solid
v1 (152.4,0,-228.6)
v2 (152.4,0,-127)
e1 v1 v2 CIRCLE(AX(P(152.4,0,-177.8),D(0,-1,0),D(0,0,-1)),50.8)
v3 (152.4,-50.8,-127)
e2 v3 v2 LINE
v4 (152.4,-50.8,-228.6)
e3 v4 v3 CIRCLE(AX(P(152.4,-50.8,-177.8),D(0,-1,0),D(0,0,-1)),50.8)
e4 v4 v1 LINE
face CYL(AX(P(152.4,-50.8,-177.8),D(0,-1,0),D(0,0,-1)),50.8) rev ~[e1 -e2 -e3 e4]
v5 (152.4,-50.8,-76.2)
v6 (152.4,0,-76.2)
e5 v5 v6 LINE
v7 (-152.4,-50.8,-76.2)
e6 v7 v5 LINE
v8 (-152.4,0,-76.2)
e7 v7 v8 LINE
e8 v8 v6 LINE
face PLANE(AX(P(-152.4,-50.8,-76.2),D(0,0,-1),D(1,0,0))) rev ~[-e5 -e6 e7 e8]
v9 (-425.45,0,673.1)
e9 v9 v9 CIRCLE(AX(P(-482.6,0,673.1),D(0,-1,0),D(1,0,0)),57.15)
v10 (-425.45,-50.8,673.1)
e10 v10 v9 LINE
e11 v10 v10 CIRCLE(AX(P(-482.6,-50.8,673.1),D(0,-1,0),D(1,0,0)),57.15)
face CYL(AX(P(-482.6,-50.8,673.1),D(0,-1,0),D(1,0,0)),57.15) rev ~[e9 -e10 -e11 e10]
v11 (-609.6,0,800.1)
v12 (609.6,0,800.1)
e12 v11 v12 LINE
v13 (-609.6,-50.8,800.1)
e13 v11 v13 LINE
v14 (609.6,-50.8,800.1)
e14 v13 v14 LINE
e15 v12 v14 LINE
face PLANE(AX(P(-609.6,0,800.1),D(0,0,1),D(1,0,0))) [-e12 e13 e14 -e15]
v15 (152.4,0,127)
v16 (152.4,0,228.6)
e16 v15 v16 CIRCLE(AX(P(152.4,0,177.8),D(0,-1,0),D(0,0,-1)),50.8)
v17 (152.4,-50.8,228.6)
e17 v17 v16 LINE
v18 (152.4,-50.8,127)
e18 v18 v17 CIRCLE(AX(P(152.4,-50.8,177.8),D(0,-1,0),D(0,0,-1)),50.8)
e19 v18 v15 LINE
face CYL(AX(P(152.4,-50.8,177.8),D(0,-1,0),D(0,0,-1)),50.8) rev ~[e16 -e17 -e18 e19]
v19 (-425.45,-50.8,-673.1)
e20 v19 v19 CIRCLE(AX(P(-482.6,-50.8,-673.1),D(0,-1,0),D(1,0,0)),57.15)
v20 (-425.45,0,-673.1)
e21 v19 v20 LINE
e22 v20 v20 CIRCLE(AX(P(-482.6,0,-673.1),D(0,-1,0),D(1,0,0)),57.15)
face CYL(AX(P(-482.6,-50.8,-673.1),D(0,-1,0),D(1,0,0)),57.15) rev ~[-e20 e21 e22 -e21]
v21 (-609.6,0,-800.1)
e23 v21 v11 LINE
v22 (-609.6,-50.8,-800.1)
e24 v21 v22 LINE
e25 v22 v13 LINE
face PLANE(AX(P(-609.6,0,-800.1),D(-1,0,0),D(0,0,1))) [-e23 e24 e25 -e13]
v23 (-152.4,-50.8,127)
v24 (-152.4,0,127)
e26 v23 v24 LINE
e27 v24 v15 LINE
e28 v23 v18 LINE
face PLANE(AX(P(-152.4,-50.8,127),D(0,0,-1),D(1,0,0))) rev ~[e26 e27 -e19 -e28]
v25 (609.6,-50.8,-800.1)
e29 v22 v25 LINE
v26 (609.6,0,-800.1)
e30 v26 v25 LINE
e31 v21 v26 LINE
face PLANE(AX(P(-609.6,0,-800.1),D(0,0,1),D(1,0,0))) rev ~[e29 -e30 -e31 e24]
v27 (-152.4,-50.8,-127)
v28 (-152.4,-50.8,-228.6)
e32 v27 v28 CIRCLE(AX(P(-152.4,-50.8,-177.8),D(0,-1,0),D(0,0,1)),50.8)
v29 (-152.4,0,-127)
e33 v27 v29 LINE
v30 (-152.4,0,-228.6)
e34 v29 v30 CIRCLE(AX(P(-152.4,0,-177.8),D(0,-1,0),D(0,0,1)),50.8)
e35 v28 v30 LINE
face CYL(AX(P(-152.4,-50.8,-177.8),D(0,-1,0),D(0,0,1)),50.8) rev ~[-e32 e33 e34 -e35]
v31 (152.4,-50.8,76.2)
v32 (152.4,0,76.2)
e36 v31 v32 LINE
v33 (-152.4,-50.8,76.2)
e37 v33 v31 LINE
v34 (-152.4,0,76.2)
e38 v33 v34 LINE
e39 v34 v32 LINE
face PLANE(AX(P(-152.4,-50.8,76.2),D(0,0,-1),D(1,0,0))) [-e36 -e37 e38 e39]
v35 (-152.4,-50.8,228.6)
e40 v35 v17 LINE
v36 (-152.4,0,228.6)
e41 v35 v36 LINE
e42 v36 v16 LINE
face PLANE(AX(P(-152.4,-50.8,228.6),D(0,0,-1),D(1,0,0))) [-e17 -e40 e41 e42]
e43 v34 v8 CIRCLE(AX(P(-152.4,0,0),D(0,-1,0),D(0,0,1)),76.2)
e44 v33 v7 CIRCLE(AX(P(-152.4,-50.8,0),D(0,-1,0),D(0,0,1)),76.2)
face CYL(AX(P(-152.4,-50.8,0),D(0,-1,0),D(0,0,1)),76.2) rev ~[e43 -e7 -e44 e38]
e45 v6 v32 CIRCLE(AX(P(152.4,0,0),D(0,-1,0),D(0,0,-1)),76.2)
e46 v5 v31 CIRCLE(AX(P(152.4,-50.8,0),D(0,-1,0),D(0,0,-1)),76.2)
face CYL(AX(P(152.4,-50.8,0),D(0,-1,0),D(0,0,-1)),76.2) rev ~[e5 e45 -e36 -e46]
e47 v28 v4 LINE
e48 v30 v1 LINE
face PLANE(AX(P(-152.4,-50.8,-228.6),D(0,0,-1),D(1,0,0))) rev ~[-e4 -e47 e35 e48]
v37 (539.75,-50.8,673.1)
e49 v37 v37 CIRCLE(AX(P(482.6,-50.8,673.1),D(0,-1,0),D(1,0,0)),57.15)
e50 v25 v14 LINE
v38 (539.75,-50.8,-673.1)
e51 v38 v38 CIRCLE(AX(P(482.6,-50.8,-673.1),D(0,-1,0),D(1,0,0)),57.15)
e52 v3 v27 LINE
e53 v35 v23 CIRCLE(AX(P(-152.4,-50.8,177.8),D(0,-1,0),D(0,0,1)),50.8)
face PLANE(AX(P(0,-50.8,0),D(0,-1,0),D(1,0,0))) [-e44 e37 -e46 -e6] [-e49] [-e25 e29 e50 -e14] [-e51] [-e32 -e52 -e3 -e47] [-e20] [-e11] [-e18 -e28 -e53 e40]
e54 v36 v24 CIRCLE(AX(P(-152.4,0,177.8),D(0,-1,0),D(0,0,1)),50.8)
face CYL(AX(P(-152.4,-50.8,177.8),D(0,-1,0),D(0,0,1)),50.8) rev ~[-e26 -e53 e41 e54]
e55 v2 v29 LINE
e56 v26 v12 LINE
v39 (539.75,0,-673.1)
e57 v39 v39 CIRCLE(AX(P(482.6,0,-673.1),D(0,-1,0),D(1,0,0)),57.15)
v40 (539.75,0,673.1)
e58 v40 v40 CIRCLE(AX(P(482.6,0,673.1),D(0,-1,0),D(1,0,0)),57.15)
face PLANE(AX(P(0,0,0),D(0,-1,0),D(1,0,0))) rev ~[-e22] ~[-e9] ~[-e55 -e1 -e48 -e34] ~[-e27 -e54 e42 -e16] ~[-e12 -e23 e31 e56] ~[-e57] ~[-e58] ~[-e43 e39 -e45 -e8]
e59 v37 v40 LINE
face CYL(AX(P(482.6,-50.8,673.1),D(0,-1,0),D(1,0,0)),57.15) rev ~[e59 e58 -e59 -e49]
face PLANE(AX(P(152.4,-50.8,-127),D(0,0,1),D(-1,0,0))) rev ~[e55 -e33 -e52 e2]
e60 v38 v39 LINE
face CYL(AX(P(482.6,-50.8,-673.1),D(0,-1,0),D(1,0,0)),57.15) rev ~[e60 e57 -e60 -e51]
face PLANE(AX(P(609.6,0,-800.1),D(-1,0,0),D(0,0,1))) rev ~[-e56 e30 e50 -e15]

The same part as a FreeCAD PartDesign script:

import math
import FreeCAD as App
import Part
import Sketcher
Q = App.Units.Quantity

doc = App.newDocument("Part")
body = doc.addObject("PartDesign::Body", "Body")

# Sketch on XZ plane
sketch1 = body.newObject("Sketcher::SketchObject", "Sketch")
sketch1.AttachmentSupport = (doc.getObject("XZ_Plane"), [""])
sketch1.MapMode = "FlatFace"
sketch1.addGeometry([
    Part.LineSegment(App.Vector(-609.6, 800.1, 0), App.Vector(-609.6, -800.1, 0)),
    Part.LineSegment(App.Vector(-609.6, -800.1, 0), App.Vector(609.6, -800.1, 0)),
    Part.LineSegment(App.Vector(609.6, -800.1, 0), App.Vector(609.6, 800.1, 0)),
    Part.LineSegment(App.Vector(609.6, 800.1, 0), App.Vector(-609.6, 800.1, 0)),
], False)
sketch1.addConstraint([
    Sketcher.Constraint("Coincident", 0, 2, 1, 1),
    Sketcher.Constraint("Coincident", 1, 2, 2, 1),
    Sketcher.Constraint("Coincident", 2, 2, 3, 1),
    Sketcher.Constraint("Coincident", 3, 2, 0, 1),
    Sketcher.Constraint("Vertical", 0),
    Sketcher.Constraint("Horizontal", 1),
    Sketcher.Constraint("Vertical", 2),
    Sketcher.Constraint("Horizontal", 3),
    Sketcher.Constraint("Symmetric", 0, 2, 2, 2, -1, 1),
    Sketcher.Constraint("DistanceX", 1, 1, 1, 2, Q("48 in")),
    Sketcher.Constraint("DistanceY", 0, 2, 0, 1, Q("63 in")),
])
pad1 = body.newObject("PartDesign::Pad", "Pad")
pad1.Profile = sketch1
pad1.Length = Q("2 in")

# Sketch on XZ plane
sketch2 = body.newObject("Sketcher::SketchObject", "Sketch001")
sketch2.AttachmentSupport = (doc.getObject("XZ_Plane"), [""])
sketch2.MapMode = "FlatFace"
sketch2.AttachmentOffset = App.Placement(App.Vector(0, 0, 2 * 25.4), App.Rotation())
sketch2.addGeometry([
    Part.Circle(App.Vector(-482.6, 673.1, 0), App.Vector(0, 0, 1), 57.15),
    Part.Circle(App.Vector(482.6, 673.1, 0), App.Vector(0, 0, 1), 57.15),
    Part.Circle(App.Vector(-482.6, -673.1, 0), App.Vector(0, 0, 1), 57.15),
    Part.Circle(App.Vector(482.6, -673.1, 0), App.Vector(0, 0, 1), 57.15),
], False)
sketch2.addConstraint([
    Sketcher.Constraint("Equal", 0, 1),
    Sketcher.Constraint("Equal", 1, 2),
    Sketcher.Constraint("Equal", 2, 3),
    Sketcher.Constraint("Symmetric", 1, 3, 2, 3, -1, 1),
    Sketcher.Constraint("Symmetric", 0, 3, 3, 3, -1, 1),
    Sketcher.Constraint("Symmetric", 0, 3, 1, 3, -2),
    Sketcher.Constraint("Diameter", 0, Q("4.5 in")),
    Sketcher.Constraint("DistanceX", 0, 3, -1, 1, Q("19 in")),
    Sketcher.Constraint("DistanceY", 2, 3, 0, 3, Q("53 in")),
])
pocket1 = body.newObject("PartDesign::Pocket", "Pocket")
pocket1.Profile = sketch2
pocket1.Length = Q("3 in")

# Sketch on XZ plane
sketch3 = body.newObject("Sketcher::SketchObject", "Sketch002")
sketch3.AttachmentSupport = (doc.getObject("XZ_Plane"), [""])
sketch3.MapMode = "FlatFace"
sketch3.AttachmentOffset = App.Placement(App.Vector(0, 0, 2 * 25.4), App.Rotation())
sketch3.addGeometry([
    Part.LineSegment(App.Vector(-152.4, 127, 0), App.Vector(152.4, 127, 0)),  # 0
    Part.ArcOfCircle(Part.Circle(App.Vector(152.4, 177.8, 0), App.Vector(0, 0, 1), 50.8), math.radians(-90), math.radians(90)),  # 1
    Part.LineSegment(App.Vector(152.4, 228.6, 0), App.Vector(-152.4, 228.6, 0)),  # 2
    Part.ArcOfCircle(Part.Circle(App.Vector(-152.4, 177.8, 0), App.Vector(0, 0, 1), 50.8), math.radians(90), math.radians(270)),  # 3
    Part.LineSegment(App.Vector(152.4, -127, 0), App.Vector(-152.4, -127, 0)),  # 4
    Part.ArcOfCircle(Part.Circle(App.Vector(-152.4, -177.8, 0), App.Vector(0, 0, 1), 50.8), math.radians(90), math.radians(270)),  # 5
    Part.LineSegment(App.Vector(-152.4, -228.6, 0), App.Vector(152.4, -228.6, 0)),  # 6
    Part.ArcOfCircle(Part.Circle(App.Vector(152.4, -177.8, 0), App.Vector(0, 0, 1), 50.8), math.radians(-90), math.radians(90)),  # 7
    Part.LineSegment(App.Vector(-152.4, -76.2, 0), App.Vector(152.4, -76.2, 0)),  # 8
    Part.ArcOfCircle(Part.Circle(App.Vector(152.4, 0, 0), App.Vector(0, 0, 1), 76.2), math.radians(-90), math.radians(90)),  # 9
    Part.LineSegment(App.Vector(152.4, 76.2, 0), App.Vector(-152.4, 76.2, 0)),  # 10
    Part.ArcOfCircle(Part.Circle(App.Vector(-152.4, 0, 0), App.Vector(0, 0, 1), 76.2), math.radians(90), math.radians(270)),  # 11
], False)
sketch3.addConstraint([
    Sketcher.Constraint("Tangent", 0, 2, 1, 1),
    Sketcher.Constraint("Tangent", 1, 2, 2, 1),
    Sketcher.Constraint("Tangent", 2, 2, 3, 1),
    Sketcher.Constraint("Tangent", 3, 2, 0, 1),
    Sketcher.Constraint("Tangent", 4, 2, 5, 1),
    Sketcher.Constraint("Tangent", 5, 2, 6, 1),
    Sketcher.Constraint("Tangent", 6, 2, 7, 1),
    Sketcher.Constraint("Tangent", 7, 2, 4, 1),
    Sketcher.Constraint("Tangent", 8, 2, 9, 1),
    Sketcher.Constraint("Tangent", 9, 2, 10, 1),
    Sketcher.Constraint("Tangent", 10, 2, 11, 1),
    Sketcher.Constraint("Tangent", 11, 2, 8, 1),
    Sketcher.Constraint("Horizontal", 0),
    Sketcher.Constraint("Horizontal", 2),
    Sketcher.Constraint("Horizontal", 4),
    Sketcher.Constraint("Horizontal", 6),
    Sketcher.Constraint("Horizontal", 8),
    Sketcher.Constraint("Horizontal", 10),
    Sketcher.Constraint("Equal", 3, 5),
    Sketcher.Constraint("Symmetric", 1, 3, 5, 3, -1, 1),
    Sketcher.Constraint("Symmetric", 9, 3, 11, 3, -1, 1),
    Sketcher.Constraint("Vertical", 3, 3, 5, 3),
    Sketcher.Constraint("Vertical", 1, 3, 7, 3),
    Sketcher.Constraint("Vertical", 7, 3, 9, 3),
    Sketcher.Constraint("Radius", 1, Q("2 in")),
    Sketcher.Constraint("Radius", 9, Q("3 in")),
    Sketcher.Constraint("DistanceX", 0, 1, 0, 2, Q("12 in")),
    Sketcher.Constraint("DistanceY", -1, 1, 1, 3, Q("7 in")),
])
pocket2 = body.newObject("PartDesign::Pocket", "Pocket001")
pocket2.Profile = sketch3
pocket2.Length = Q("3 in")

# Sketch on XZ plane
sketch4 = body.newObject("Sketcher::SketchObject", "Sketch003")
sketch4.AttachmentSupport = (doc.getObject("XZ_Plane"), [""])
sketch4.MapMode = "FlatFace"
sketch4.AttachmentOffset = App.Placement(App.Vector(0, 0, 2 * 25.4), App.Rotation())
sketch4.addGeometry([
    Part.LineSegment(App.Vector(-152.4, 127, 0), App.Vector(152.4, 127, 0)),  # 0
    Part.ArcOfCircle(Part.Circle(App.Vector(152.4, 177.8, 0), App.Vector(0, 0, 1), 50.8), math.radians(-90), math.radians(90)),  # 1
    Part.LineSegment(App.Vector(152.4, 228.6, 0), App.Vector(-152.4, 228.6, 0)),  # 2
    Part.ArcOfCircle(Part.Circle(App.Vector(-152.4, 177.8, 0), App.Vector(0, 0, 1), 50.8), math.radians(90), math.radians(270)),  # 3
    Part.LineSegment(App.Vector(152.4, -127, 0), App.Vector(-152.4, -127, 0)),  # 4
    Part.ArcOfCircle(Part.Circle(App.Vector(-152.4, -177.8, 0), App.Vector(0, 0, 1), 50.8), math.radians(90), math.radians(270)),  # 5
    Part.LineSegment(App.Vector(-152.4, -228.6, 0), App.Vector(152.4, -228.6, 0)),  # 6
    Part.ArcOfCircle(Part.Circle(App.Vector(152.4, -177.8, 0), App.Vector(0, 0, 1), 50.8), math.radians(-90), math.radians(90)),  # 7
    Part.LineSegment(App.Vector(-152.4, -76.2, 0), App.Vector(152.4, -76.2, 0)),  # 8
    Part.ArcOfCircle(Part.Circle(App.Vector(152.4, 0, 0), App.Vector(0, 0, 1), 76.2), math.radians(-90), math.radians(90)),  # 9
    Part.LineSegment(App.Vector(152.4, 76.2, 0), App.Vector(-152.4, 76.2, 0)),  # 10
    Part.ArcOfCircle(Part.Circle(App.Vector(-152.4, 0, 0), App.Vector(0, 0, 1), 76.2), math.radians(90), math.radians(270)),  # 11
], False)
sketch4.addConstraint([
    Sketcher.Constraint("Tangent", 0, 2, 1, 1),
    Sketcher.Constraint("Tangent", 1, 2, 2, 1),
    Sketcher.Constraint("Tangent", 2, 2, 3, 1),
    Sketcher.Constraint("Tangent", 3, 2, 0, 1),
    Sketcher.Constraint("Tangent", 4, 2, 5, 1),
    Sketcher.Constraint("Tangent", 5, 2, 6, 1),
    Sketcher.Constraint("Tangent", 6, 2, 7, 1),
    Sketcher.Constraint("Tangent", 7, 2, 4, 1),
    Sketcher.Constraint("Tangent", 8, 2, 9, 1),
    Sketcher.Constraint("Tangent", 9, 2, 10, 1),
    Sketcher.Constraint("Tangent", 10, 2, 11, 1),
    Sketcher.Constraint("Tangent", 11, 2, 8, 1),
    Sketcher.Constraint("Horizontal", 0),
    Sketcher.Constraint("Horizontal", 2),
    Sketcher.Constraint("Horizontal", 4),
    Sketcher.Constraint("Horizontal", 6),
    Sketcher.Constraint("Horizontal", 8),
    Sketcher.Constraint("Horizontal", 10),
    Sketcher.Constraint("Equal", 3, 5),
    Sketcher.Constraint("Symmetric", 1, 3, 5, 3, -1, 1),
    Sketcher.Constraint("Symmetric", 9, 3, 11, 3, -1, 1),
    Sketcher.Constraint("Vertical", 3, 3, 5, 3),
    Sketcher.Constraint("Vertical", 1, 3, 7, 3),
    Sketcher.Constraint("Vertical", 7, 3, 9, 3),
    Sketcher.Constraint("Radius", 1, Q("2 in")),
    Sketcher.Constraint("Radius", 9, Q("3 in")),
    Sketcher.Constraint("DistanceX", 0, 1, 0, 2, Q("12 in")),
    Sketcher.Constraint("DistanceY", -1, 1, 1, 3, Q("7 in")),
])
pocket3 = body.newObject("PartDesign::Pocket", "Pocket002")
pocket3.Profile = sketch4
pocket3.Length = Q("3 in")

doc.recompute()
